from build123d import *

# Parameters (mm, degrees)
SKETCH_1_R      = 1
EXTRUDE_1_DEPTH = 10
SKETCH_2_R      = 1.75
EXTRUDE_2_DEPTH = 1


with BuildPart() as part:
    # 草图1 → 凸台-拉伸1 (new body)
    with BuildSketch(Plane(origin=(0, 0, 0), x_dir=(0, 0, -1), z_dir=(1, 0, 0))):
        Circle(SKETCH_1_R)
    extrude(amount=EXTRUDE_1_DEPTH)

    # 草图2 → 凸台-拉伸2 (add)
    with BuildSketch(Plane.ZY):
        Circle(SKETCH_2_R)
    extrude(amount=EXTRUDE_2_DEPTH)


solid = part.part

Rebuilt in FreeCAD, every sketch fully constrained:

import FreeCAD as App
import Part
import Sketcher
from FreeCAD import Vector
Q = App.Units.Quantity

doc = App.newDocument("Part")
body = doc.addObject("PartDesign::Body", "Body")

# Sketch on YZ plane
sketch1 = body.newObject("Sketcher::SketchObject", "Sketch")
sketch1.AttachmentSupport = (doc.getObject("YZ_Plane"), [""])
sketch1.MapMode = "FlatFace"
sketch1.addGeometry(Part.Circle(Vector(0, 0, 0), Vector(0, 0, 1), 1), False)
sketch1.addConstraint([
    Sketcher.Constraint("Coincident", 0, 3, -1, 1),
    Sketcher.Constraint("Diameter", 0, Q("2 mm")),
])
pad1 = body.newObject("PartDesign::Pad", "Pad")
pad1.Profile = sketch1
pad1.Length = 10

# Sketch on YZ plane
sketch2 = body.newObject("Sketcher::SketchObject", "Sketch001")
sketch2.AttachmentSupport = (doc.getObject("YZ_Plane"), [""])
sketch2.MapMode = "FlatFace"
sketch2.addGeometry(Part.Circle(Vector(0, 0, 0), Vector(0, 0, 1), 1.75), False)
sketch2.addConstraint([
    Sketcher.Constraint("Coincident", 0, 3, -1, 1),
    Sketcher.Constraint("Diameter", 0, Q("3.5 mm")),
])
pad2 = body.newObject("PartDesign::Pad", "Pad001")
pad2.Profile = sketch2
pad2.Length = 1
pad2.Reversed = True

doc.recompute()
